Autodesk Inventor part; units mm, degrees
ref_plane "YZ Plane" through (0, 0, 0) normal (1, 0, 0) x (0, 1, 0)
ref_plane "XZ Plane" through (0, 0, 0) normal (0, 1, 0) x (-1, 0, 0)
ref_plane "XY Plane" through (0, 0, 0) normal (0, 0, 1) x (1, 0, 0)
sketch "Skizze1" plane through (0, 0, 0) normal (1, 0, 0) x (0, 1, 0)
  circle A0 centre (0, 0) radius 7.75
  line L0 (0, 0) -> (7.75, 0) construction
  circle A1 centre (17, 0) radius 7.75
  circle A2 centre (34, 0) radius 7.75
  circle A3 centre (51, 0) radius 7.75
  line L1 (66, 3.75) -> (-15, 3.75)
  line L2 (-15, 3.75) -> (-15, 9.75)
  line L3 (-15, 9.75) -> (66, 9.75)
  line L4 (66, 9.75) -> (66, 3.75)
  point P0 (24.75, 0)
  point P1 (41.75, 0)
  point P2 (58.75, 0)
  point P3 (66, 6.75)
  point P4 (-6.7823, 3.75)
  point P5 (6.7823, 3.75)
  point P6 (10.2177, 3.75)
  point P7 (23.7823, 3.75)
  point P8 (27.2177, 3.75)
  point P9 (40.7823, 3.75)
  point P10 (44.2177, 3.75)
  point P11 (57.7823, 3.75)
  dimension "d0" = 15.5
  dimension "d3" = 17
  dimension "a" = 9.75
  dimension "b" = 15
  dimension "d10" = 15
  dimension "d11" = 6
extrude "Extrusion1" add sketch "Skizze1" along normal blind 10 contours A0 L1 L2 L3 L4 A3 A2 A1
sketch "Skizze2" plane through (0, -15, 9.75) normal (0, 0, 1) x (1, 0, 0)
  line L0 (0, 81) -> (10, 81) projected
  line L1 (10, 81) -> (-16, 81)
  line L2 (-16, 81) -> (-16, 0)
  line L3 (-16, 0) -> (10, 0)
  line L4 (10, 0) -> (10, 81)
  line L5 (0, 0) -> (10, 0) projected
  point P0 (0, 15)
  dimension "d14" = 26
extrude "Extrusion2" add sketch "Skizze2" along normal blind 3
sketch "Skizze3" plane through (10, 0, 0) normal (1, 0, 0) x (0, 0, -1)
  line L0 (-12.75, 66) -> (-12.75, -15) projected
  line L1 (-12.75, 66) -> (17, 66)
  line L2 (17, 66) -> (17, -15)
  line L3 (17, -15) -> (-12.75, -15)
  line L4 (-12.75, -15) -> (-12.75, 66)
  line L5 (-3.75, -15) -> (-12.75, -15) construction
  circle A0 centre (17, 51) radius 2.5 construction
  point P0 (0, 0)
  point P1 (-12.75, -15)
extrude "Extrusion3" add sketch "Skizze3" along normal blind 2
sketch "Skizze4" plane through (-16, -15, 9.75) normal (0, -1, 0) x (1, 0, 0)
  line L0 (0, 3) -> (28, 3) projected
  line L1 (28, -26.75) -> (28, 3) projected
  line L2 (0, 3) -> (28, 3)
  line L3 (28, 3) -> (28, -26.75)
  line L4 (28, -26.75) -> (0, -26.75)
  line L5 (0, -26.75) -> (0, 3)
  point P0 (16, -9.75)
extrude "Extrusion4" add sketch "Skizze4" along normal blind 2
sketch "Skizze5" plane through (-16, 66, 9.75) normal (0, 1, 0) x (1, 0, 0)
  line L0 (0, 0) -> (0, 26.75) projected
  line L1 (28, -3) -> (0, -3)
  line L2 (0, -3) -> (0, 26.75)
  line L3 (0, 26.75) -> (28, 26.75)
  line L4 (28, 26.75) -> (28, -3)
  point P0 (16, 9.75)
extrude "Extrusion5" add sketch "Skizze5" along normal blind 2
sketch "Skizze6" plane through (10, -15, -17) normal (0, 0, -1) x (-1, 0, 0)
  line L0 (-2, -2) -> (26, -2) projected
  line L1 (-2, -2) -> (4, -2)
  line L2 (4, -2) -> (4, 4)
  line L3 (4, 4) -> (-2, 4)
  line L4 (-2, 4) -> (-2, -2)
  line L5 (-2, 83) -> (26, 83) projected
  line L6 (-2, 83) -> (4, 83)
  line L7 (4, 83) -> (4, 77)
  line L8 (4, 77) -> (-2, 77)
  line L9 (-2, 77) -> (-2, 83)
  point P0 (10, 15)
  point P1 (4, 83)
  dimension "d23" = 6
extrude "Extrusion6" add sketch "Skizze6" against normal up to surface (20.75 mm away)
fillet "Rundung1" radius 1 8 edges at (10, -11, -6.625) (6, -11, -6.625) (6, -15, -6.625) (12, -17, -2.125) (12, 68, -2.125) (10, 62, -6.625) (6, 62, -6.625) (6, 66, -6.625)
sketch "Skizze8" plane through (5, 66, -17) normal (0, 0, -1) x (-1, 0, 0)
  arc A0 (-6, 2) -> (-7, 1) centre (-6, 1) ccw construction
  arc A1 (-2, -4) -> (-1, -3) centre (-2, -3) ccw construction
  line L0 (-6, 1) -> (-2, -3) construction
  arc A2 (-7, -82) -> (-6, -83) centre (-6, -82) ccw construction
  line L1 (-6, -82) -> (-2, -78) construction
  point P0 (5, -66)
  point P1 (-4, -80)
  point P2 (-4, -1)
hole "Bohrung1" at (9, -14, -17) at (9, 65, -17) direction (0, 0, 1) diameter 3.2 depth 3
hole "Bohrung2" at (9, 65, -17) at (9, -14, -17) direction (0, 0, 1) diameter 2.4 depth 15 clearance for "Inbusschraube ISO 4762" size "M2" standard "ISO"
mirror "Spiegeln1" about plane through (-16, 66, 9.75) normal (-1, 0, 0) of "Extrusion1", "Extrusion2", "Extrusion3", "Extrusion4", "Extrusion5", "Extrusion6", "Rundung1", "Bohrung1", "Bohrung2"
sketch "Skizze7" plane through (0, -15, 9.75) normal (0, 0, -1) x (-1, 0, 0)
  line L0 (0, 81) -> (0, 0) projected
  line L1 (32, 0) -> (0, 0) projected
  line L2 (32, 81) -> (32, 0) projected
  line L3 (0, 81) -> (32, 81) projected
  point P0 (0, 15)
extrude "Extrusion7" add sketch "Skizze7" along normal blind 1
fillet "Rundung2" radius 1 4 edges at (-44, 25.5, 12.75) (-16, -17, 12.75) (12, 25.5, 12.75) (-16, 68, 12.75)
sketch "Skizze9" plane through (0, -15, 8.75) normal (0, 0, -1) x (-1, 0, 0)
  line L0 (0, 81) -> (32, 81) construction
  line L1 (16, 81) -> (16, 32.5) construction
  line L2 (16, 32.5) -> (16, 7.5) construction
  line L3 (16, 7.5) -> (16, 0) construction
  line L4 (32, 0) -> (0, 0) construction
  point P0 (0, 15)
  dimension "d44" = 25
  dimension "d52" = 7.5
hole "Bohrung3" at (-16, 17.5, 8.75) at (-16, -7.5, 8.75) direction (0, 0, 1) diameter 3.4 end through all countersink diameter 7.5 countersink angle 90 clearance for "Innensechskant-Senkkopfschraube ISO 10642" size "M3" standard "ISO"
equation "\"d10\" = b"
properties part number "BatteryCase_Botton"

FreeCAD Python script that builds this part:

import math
import FreeCAD as App
import Part
import Sketcher
from FreeCAD import Vector


def edges_at(feature, points):
    """Names of the edges that pass closest to the given points."""
    edges = feature.Shape.Edges
    near = lambda p: min(range(len(edges)), key=lambda i: edges[i].distToShape(Part.Vertex(*p))[0])
    return sorted({f"Edge{near(p) + 1}" for p in points})

doc = App.newDocument("Part")
body = doc.addObject("PartDesign::Body", "Body")

# Sketch on YZ plane
sketch1 = doc.addObject("Sketcher::SketchObject", "Sketch")
body.addObject(sketch1)
sketch1.AttachmentSupport = (doc.YZ_Plane, [""])
sketch1.MapMode = "FlatFace"
sketch1.addGeometry(Part.ArcOfCircle(Part.Circle(Vector(0, 0, 0), Vector(0, 0, 1), 7.8), math.radians(29), math.radians(151)), False)
sketch1.addGeometry(Part.LineSegment(Vector(6.8, 3.8, 0), Vector(10.2, 3.8, 0)), False)
sketch1.addGeometry(Part.ArcOfCircle(Part.Circle(Vector(17, 0, 0), Vector(0, 0, 1), 7.8), math.radians(29), math.radians(151)), False)
sketch1.addGeometry(Part.LineSegment(Vector(23.8, 3.8, 0), Vector(27.2, 3.8, 0)), False)
sketch1.addGeometry(Part.ArcOfCircle(Part.Circle(Vector(34, 0, 0), Vector(0, 0, 1), 7.8), math.radians(29), math.radians(151)), False)
sketch1.addGeometry(Part.LineSegment(Vector(40.8, 3.8, 0), Vector(44.2, 3.8, 0)), False)
sketch1.addGeometry(Part.ArcOfCircle(Part.Circle(Vector(51, 0, 0), Vector(0, 0, 1), 7.8), math.radians(29), math.radians(151)), False)
sketch1.addGeometry(Part.LineSegment(Vector(57.8, 3.8, 0), Vector(66, 3.8, 0)), False)
sketch1.addGeometry(Part.LineSegment(Vector(66, 3.8, 0), Vector(66, 9.8, 0)), False)
sketch1.addGeometry(Part.LineSegment(Vector(66, 9.8, 0), Vector(-15, 9.8, 0)), False)
sketch1.addGeometry(Part.LineSegment(Vector(-15, 9.8, 0), Vector(-15, 3.8, 0)), False)
sketch1.addGeometry(Part.LineSegment(Vector(-15, 3.8, 0), Vector(-6.8, 3.8, 0)), False)
sketch1.addConstraint(Sketcher.Constraint("Coincident", 0, 1, 1, 1))
sketch1.addConstraint(Sketcher.Constraint("Coincident", 1, 2, 2, 2))
sketch1.addConstraint(Sketcher.Constraint("Coincident", 2, 1, 3, 1))
sketch1.addConstraint(Sketcher.Constraint("Coincident", 3, 2, 4, 2))
sketch1.addConstraint(Sketcher.Constraint("Coincident", 4, 1, 5, 1))
sketch1.addConstraint(Sketcher.Constraint("Coincident", 5, 2, 6, 2))
sketch1.addConstraint(Sketcher.Constraint("Coincident", 6, 1, 7, 1))
sketch1.addConstraint(Sketcher.Constraint("Coincident", 7, 2, 8, 1))
sketch1.addConstraint(Sketcher.Constraint("Coincident", 8, 2, 9, 1))
sketch1.addConstraint(Sketcher.Constraint("Coincident", 9, 2, 10, 1))
sketch1.addConstraint(Sketcher.Constraint("Coincident", 10, 2, 11, 1))
sketch1.addConstraint(Sketcher.Constraint("Coincident", 11, 2, 0, 2))
sketch1.addConstraint(Sketcher.Constraint("Horizontal", 1))
sketch1.addConstraint(Sketcher.Constraint("Horizontal", 3))
sketch1.addConstraint(Sketcher.Constraint("Horizontal", 5))
sketch1.addConstraint(Sketcher.Constraint("Horizontal", 7))
sketch1.addConstraint(Sketcher.Constraint("Vertical", 8))
sketch1.addConstraint(Sketcher.Constraint("Horizontal", 9))
sketch1.addConstraint(Sketcher.Constraint("Vertical", 10))
sketch1.addConstraint(Sketcher.Constraint("Horizontal", 11))
sketch1.addConstraint(Sketcher.Constraint("Coincident", 0, 3, -1, 1))
sketch1.addConstraint(Sketcher.Constraint("Equal", 0, 2))
sketch1.addConstraint(Sketcher.Constraint("Equal", 2, 4))
sketch1.addConstraint(Sketcher.Constraint("Equal", 4, 6))
sketch1.addConstraint(Sketcher.Constraint("PointOnObject", 2, 3, -1))
sketch1.addConstraint(Sketcher.Constraint("PointOnObject", 4, 3, -1))
sketch1.addConstraint(Sketcher.Constraint("PointOnObject", 6, 3, -1))
sketch1.addConstraint(Sketcher.Constraint("Horizontal", 1, 2, 2, 1))
sketch1.addConstraint(Sketcher.Constraint("Horizontal", 3, 2, 4, 1))
sketch1.addConstraint(Sketcher.Constraint("Horizontal", 5, 2, 6, 1))
sketch1.addConstraint(Sketcher.Constraint("Horizontal", 7, 2, 10, 2))
sketch1.addConstraint(Sketcher.Constraint("Equal", 1, 3))
sketch1.addConstraint(Sketcher.Constraint("Equal", 3, 5))
sketch1.addConstraint(Sketcher.Constraint("Equal", 7, 11))
sketch1.addConstraint(Sketcher.Constraint("DistanceY", 8, 1, 8, 2, 6.0))
sketch1.addConstraint(Sketcher.Constraint("Radius", 0, 7.75))
sketch1.addConstraint(Sketcher.Constraint("DistanceX", -1, 1, 2, 3, 17.0))
sketch1.addConstraint(Sketcher.Constraint("DistanceX", 9, 2, -1, 1, 15.0))
sketch1.addConstraint(Sketcher.Constraint("DistanceY", -1, 1, 8, 2, 9.75))
pad1 = doc.addObject("PartDesign::Pad", "Pad")
body.addObject(pad1)
pad1.Profile = sketch1
pad1.Length = 10

# Sketch on XY plane
sketch2 = doc.addObject("Sketcher::SketchObject", "Sketch001")
body.addObject(sketch2)
sketch2.AttachmentSupport = (doc.XY_Plane, [""])
sketch2.MapMode = "FlatFace"
sketch2.AttachmentOffset = App.Placement(Vector(0, 0, 9.75), App.Rotation())
sketch2.addGeometry(Part.LineSegment(Vector(10, 66, 0), Vector(-16, 66, 0)), False)
sketch2.addGeometry(Part.LineSegment(Vector(-16, 66, 0), Vector(-16, -15, 0)), False)
sketch2.addGeometry(Part.LineSegment(Vector(-16, -15, 0), Vector(10, -15, 0)), False)
sketch2.addGeometry(Part.LineSegment(Vector(10, -15, 0), Vector(10, 66, 0)), False)
sketch2.addConstraint(Sketcher.Constraint("Coincident", 0, 2, 1, 1))
sketch2.addConstraint(Sketcher.Constraint("Coincident", 1, 2, 2, 1))
sketch2.addConstraint(Sketcher.Constraint("Coincident", 2, 2, 3, 1))
sketch2.addConstraint(Sketcher.Constraint("Coincident", 3, 2, 0, 1))
sketch2.addConstraint(Sketcher.Constraint("Horizontal", 0))
sketch2.addConstraint(Sketcher.Constraint("Vertical", 1))
sketch2.addConstraint(Sketcher.Constraint("Horizontal", 2))
sketch2.addConstraint(Sketcher.Constraint("Vertical", 3))
sketch2.addConstraint(Sketcher.Constraint("DistanceX", 0, 2, 0, 1, 26.0))
sketch2.addConstraint(Sketcher.Constraint("DistanceY", 1, 2, 1, 1, 81.0))
sketch2.addConstraint(Sketcher.Constraint("DistanceX", 0, 2, -1, 1, 16.0))
sketch2.addConstraint(Sketcher.Constraint("DistanceY", -1, 1, 0, 2, 66.0))
pad2 = doc.addObject("PartDesign::Pad", "Pad001")
body.addObject(pad2)
pad2.Profile = sketch2
pad2.Length = 3

# Sketch on YZ plane
sketch3 = doc.addObject("Sketcher::SketchObject", "Sketch002")
body.addObject(sketch3)
sketch3.AttachmentSupport = (doc.YZ_Plane, [""])
sketch3.MapMode = "FlatFace"
sketch3.AttachmentOffset = App.Placement(Vector(0, 0, 10), App.Rotation())
sketch3.addGeometry(Part.LineSegment(Vector(66, -17, 0), Vector(66, 13, 0)), False)
sketch3.addGeometry(Part.LineSegment(Vector(66, 13, 0), Vector(-15, 13, 0)), False)
sketch3.addGeometry(Part.LineSegment(Vector(-15, 13, 0), Vector(-15, -17, 0)), False)
sketch3.addGeometry(Part.LineSegment(Vector(-15, -17, 0), Vector(66, -17, 0)), False)
sketch3.addConstraint(Sketcher.Constraint("Coincident", 0, 2, 1, 1))
sketch3.addConstraint(Sketcher.Constraint("Coincident", 1, 2, 2, 1))
sketch3.addConstraint(Sketcher.Constraint("Coincident", 2, 2, 3, 1))
sketch3.addConstraint(Sketcher.Constraint("Coincident", 3, 2, 0, 1))
sketch3.addConstraint(Sketcher.Constraint("Vertical", 0))
sketch3.addConstraint(Sketcher.Constraint("Horizontal", 1))
sketch3.addConstraint(Sketcher.Constraint("Vertical", 2))
sketch3.addConstraint(Sketcher.Constraint("Horizontal", 3))
sketch3.addConstraint(Sketcher.Constraint("DistanceX", 1, 2, 1, 1, 81.0))
sketch3.addConstraint(Sketcher.Constraint("DistanceX", -1, 1, 0, 2, 66.0))
sketch3.addConstraint(Sketcher.Constraint("DistanceY", 2, 2, -1, 1, 17.0))
sketch3.addConstraint(Sketcher.Constraint("DistanceY", 0, 1, 0, 2, 29.75))
pad3 = doc.addObject("PartDesign::Pad", "Pad002")
body.addObject(pad3)
pad3.Profile = sketch3
pad3.Length = 2

# Sketch on XZ plane
sketch4 = doc.addObject("Sketcher::SketchObject", "Sketch003")
body.addObject(sketch4)
sketch4.AttachmentSupport = (doc.XZ_Plane, [""])
sketch4.MapMode = "FlatFace"
sketch4.AttachmentOffset = App.Placement(Vector(0, 0, 15), App.Rotation())
sketch4.addGeometry(Part.LineSegment(Vector(12, 13, 0), Vector(-16, 13, 0)), False)
sketch4.addGeometry(Part.LineSegment(Vector(-16, 13, 0), Vector(-16, -17, 0)), False)
sketch4.addGeometry(Part.LineSegment(Vector(-16, -17, 0), Vector(12, -17, 0)), False)
sketch4.addGeometry(Part.LineSegment(Vector(12, -17, 0), Vector(12, 13, 0)), False)
sketch4.addConstraint(Sketcher.Constraint("Coincident", 0, 2, 1, 1))
sketch4.addConstraint(Sketcher.Constraint("Coincident", 1, 2, 2, 1))
sketch4.addConstraint(Sketcher.Constraint("Coincident", 2, 2, 3, 1))
sketch4.addConstraint(Sketcher.Constraint("Coincident", 3, 2, 0, 1))
sketch4.addConstraint(Sketcher.Constraint("Horizontal", 0))
sketch4.addConstraint(Sketcher.Constraint("Vertical", 1))
sketch4.addConstraint(Sketcher.Constraint("Horizontal", 2))
sketch4.addConstraint(Sketcher.Constraint("Vertical", 3))
sketch4.addConstraint(Sketcher.Constraint("DistanceX", 0, 2, 0, 1, 28.0))
sketch4.addConstraint(Sketcher.Constraint("DistanceX", 0, 2, -1, 1, 16.0))
sketch4.addConstraint(Sketcher.Constraint("DistanceY", 1, 2, -1, 1, 17.0))
sketch4.addConstraint(Sketcher.Constraint("DistanceY", 1, 2, 1, 1, 29.75))
pad4 = doc.addObject("PartDesign::Pad", "Pad003")
body.addObject(pad4)
pad4.Profile = sketch4
pad4.Length = 2

# Sketch on XZ plane
sketch5 = doc.addObject("Sketcher::SketchObject", "Sketch004")
body.addObject(sketch5)
sketch5.AttachmentSupport = (doc.XZ_Plane, [""])
sketch5.MapMode = "FlatFace"
sketch5.AttachmentOffset = App.Placement(Vector(0, 0, -66), App.Rotation())
sketch5.addGeometry(Part.LineSegment(Vector(-16, -17, 0), Vector(-16, 13, 0)), False)
sketch5.addGeometry(Part.LineSegment(Vector(-16, 13, 0), Vector(12, 13, 0)), False)
sketch5.addGeometry(Part.LineSegment(Vector(12, 13, 0), Vector(12, -17, 0)), False)
sketch5.addGeometry(Part.LineSegment(Vector(12, -17, 0), Vector(-16, -17, 0)), False)
sketch5.addConstraint(Sketcher.Constraint("Coincident", 0, 2, 1, 1))
sketch5.addConstraint(Sketcher.Constraint("Coincident", 1, 2, 2, 1))
sketch5.addConstraint(Sketcher.Constraint("Coincident", 2, 2, 3, 1))
sketch5.addConstraint(Sketcher.Constraint("Coincident", 3, 2, 0, 1))
sketch5.addConstraint(Sketcher.Constraint("Vertical", 0))
sketch5.addConstraint(Sketcher.Constraint("Horizontal", 1))
sketch5.addConstraint(Sketcher.Constraint("Vertical", 2))
sketch5.addConstraint(Sketcher.Constraint("Horizontal", 3))
sketch5.addConstraint(Sketcher.Constraint("DistanceX", 1, 1, 1, 2, 28.0))
sketch5.addConstraint(Sketcher.Constraint("DistanceX", 0, 2, -1, 1, 16.0))
sketch5.addConstraint(Sketcher.Constraint("DistanceY", 2, 2, -1, 1, 17.0))
sketch5.addConstraint(Sketcher.Constraint("DistanceY", 0, 1, 0, 2, 29.75))
pad5 = doc.addObject("PartDesign::Pad", "Pad004")
body.addObject(pad5)
pad5.Profile = sketch5
pad5.Length = 2
pad5.Reversed = True

# Sketch on XY plane
sketch6 = doc.addObject("Sketcher::SketchObject", "Sketch005")
body.addObject(sketch6)
sketch6.AttachmentSupport = (doc.XY_Plane, [""])
sketch6.MapMode = "FlatFace"
sketch6.AttachmentOffset = App.Placement(Vector(0, 0, -17), App.Rotation())
sketch6.addGeometry(Part.LineSegment(Vector(12, -11, 0), Vector(12, -17, 0)), False)
sketch6.addGeometry(Part.LineSegment(Vector(12, -17, 0), Vector(6, -17, 0)), False)
sketch6.addGeometry(Part.LineSegment(Vector(6, -17, 0), Vector(6, -11, 0)), False)
sketch6.addGeometry(Part.LineSegment(Vector(6, -11, 0), Vector(12, -11, 0)), False)
sketch6.addGeometry(Part.LineSegment(Vector(6, 68, 0), Vector(12, 68, 0)), False)
sketch6.addGeometry(Part.LineSegment(Vector(12, 68, 0), Vector(12, 62, 0)), False)
sketch6.addGeometry(Part.LineSegment(Vector(12, 62, 0), Vector(6, 62, 0)), False)
sketch6.addGeometry(Part.LineSegment(Vector(6, 62, 0), Vector(6, 68, 0)), False)
sketch6.addConstraint(Sketcher.Constraint("Coincident", 0, 2, 1, 1))
sketch6.addConstraint(Sketcher.Constraint("Coincident", 1, 2, 2, 1))
sketch6.addConstraint(Sketcher.Constraint("Coincident", 2, 2, 3, 1))
sketch6.addConstraint(Sketcher.Constraint("Coincident", 3, 2, 0, 1))
sketch6.addConstraint(Sketcher.Constraint("Coincident", 4, 2, 5, 1))
sketch6.addConstraint(Sketcher.Constraint("Coincident", 5, 2, 6, 1))
sketch6.addConstraint(Sketcher.Constraint("Coincident", 6, 2, 7, 1))
sketch6.addConstraint(Sketcher.Constraint("Coincident", 7, 2, 4, 1))
sketch6.addConstraint(Sketcher.Constraint("Vertical", 0))
sketch6.addConstraint(Sketcher.Constraint("Horizontal", 1))
sketch6.addConstraint(Sketcher.Constraint("Vertical", 2))
sketch6.addConstraint(Sketcher.Constraint("Horizontal", 3))
sketch6.addConstraint(Sketcher.Constraint("Horizontal", 4))
sketch6.addConstraint(Sketcher.Constraint("Vertical", 5))
sketch6.addConstraint(Sketcher.Constraint("Horizontal", 6))
sketch6.addConstraint(Sketcher.Constraint("Vertical", 7))
sketch6.addConstraint(Sketcher.Constraint("Vertical", 3, 2, 4, 2))
sketch6.addConstraint(Sketcher.Constraint("Vertical", 2, 2, 6, 2))
sketch6.addConstraint(Sketcher.Constraint("Equal", 6, 0))
sketch6.addConstraint(Sketcher.Constraint("Equal", 2, 5))
sketch6.addConstraint(Sketcher.Constraint("DistanceX", 1, 2, 1, 1, 6.0))
sketch6.addConstraint(Sketcher.Constraint("DistanceX", -1, 1, 1, 2, 6.0))
sketch6.addConstraint(Sketcher.Constraint("DistanceY", 0, 2, -1, 1, 17.0))
sketch6.addConstraint(Sketcher.Constraint("DistanceY", -1, 1, 4, 2, 68.0))
pad6 = doc.addObject("PartDesign::Pad", "Pad005")
body.addObject(pad6)
pad6.Profile = sketch6
pad6.Length = 20.75
doc.recompute()

fillet = doc.addObject("PartDesign::Fillet", "Fillet")
body.addObject(fillet)
fillet.Base = (pad6, edges_at(pad6, [
    (10, -11, -6.625),
    (6, -11, -6.625),
    (6, -15, -6.625),
    (12, -17, -2.125),
    (12, 68, -2.125),
    (10, 62, -6.625),
    (6, 62, -6.625),
    (6, 66, -6.625),
]))
fillet.Radius = 1

# Sketch on XY plane
sketch7 = doc.addObject("Sketcher::SketchObject", "Sketch006")
body.addObject(sketch7)
sketch7.AttachmentSupport = (doc.XY_Plane, [""])
sketch7.MapMode = "FlatFace"
sketch7.AttachmentOffset = App.Placement(Vector(0, 0, -17), App.Rotation())
sketch7.addGeometry(Part.Circle(Vector(9, -14, 0), Vector(0, 0, 1), 1.6), False)
sketch7.addGeometry(Part.Circle(Vector(9, 65, 0), Vector(0, 0, 1), 1.6), False)
sketch7.addConstraint(Sketcher.Constraint("Equal", 0, 1))
sketch7.addConstraint(Sketcher.Constraint("Vertical", 0, 3, 1, 3))
sketch7.addConstraint(Sketcher.Constraint("Diameter", 0, 3.2))
sketch7.addConstraint(Sketcher.Constraint("DistanceX", -1, 1, 0, 3, 9.0))
sketch7.addConstraint(Sketcher.Constraint("DistanceY", 0, 3, -1, 1, 14.0))
sketch7.addConstraint(Sketcher.Constraint("DistanceY", -1, 1, 1, 3, 65.0))
doc.recompute()
hole = doc.addObject("PartDesign::Hole", "Hole")
body.addObject(hole)
hole.Profile = sketch7
hole.ThreadType = "None"
hole.Diameter = 3.2
hole.DepthType = "Dimension"
hole.Depth = 3
hole.DrillPoint = "Flat"
hole.Reversed = True

# Sketch on XY plane
sketch8 = doc.addObject("Sketcher::SketchObject", "Sketch007")
body.addObject(sketch8)
sketch8.AttachmentSupport = (doc.XY_Plane, [""])
sketch8.MapMode = "FlatFace"
sketch8.AttachmentOffset = App.Placement(Vector(0, 0, -17), App.Rotation())
sketch8.addGeometry(Part.Circle(Vector(9, 65, 0), Vector(0, 0, 1), 1.2), False)
sketch8.addGeometry(Part.Circle(Vector(9, -14, 0), Vector(0, 0, 1), 1.2), False)
sketch8.addConstraint(Sketcher.Constraint("Equal", 0, 1))
sketch8.addConstraint(Sketcher.Constraint("Vertical", 0, 3, 1, 3))
sketch8.addConstraint(Sketcher.Constraint("Diameter", 0, 2.4))
sketch8.addConstraint(Sketcher.Constraint("DistanceX", -1, 1, 0, 3, 9.0))
sketch8.addConstraint(Sketcher.Constraint("DistanceY", -1, 1, 0, 3, 65.0))
sketch8.addConstraint(Sketcher.Constraint("DistanceY", 1, 3, -1, 1, 14.0))
doc.recompute()
hole2 = doc.addObject("PartDesign::Hole", "Hole001")
body.addObject(hole2)
hole2.Profile = sketch8
hole2.ThreadType = "None"
hole2.Diameter = 2.4
hole2.DepthType = "Dimension"
hole2.Depth = 15
hole2.DrillPoint = "Flat"
hole2.Reversed = True
doc.recompute()

datumplane = doc.addObject("PartDesign::Plane", "DatumPlane")
body.addObject(datumplane)
datumplane.AttachmentSupport = (doc.YZ_Plane, [""])
datumplane.MapMode = "FlatFace"
datumplane.AttachmentOffset = App.Placement(Vector(0, 0, -16), App.Rotation())
mirrored = doc.addObject("PartDesign::Mirrored", "Mirrored")
body.addObject(mirrored)
mirrored.Originals = [pad1, pad2, pad3, pad4, pad5, pad6, fillet, hole, hole2]
mirrored.MirrorPlane = (datumplane, [""])
body.Tip = mirrored

# Sketch on XY plane
sketch9 = doc.addObject("Sketcher::SketchObject", "Sketch008")
body.addObject(sketch9)
sketch9.AttachmentSupport = (doc.XY_Plane, [""])
sketch9.MapMode = "FlatFace"
sketch9.AttachmentOffset = App.Placement(Vector(0, 0, 9.75), App.Rotation())
sketch9.addGeometry(Part.LineSegment(Vector(-32, 66, 0), Vector(0, 66, 0)), False)
sketch9.addGeometry(Part.LineSegment(Vector(0, 66, 0), Vector(0, -15, 0)), False)
sketch9.addGeometry(Part.LineSegment(Vector(0, -15, 0), Vector(-32, -15, 0)), False)
sketch9.addGeometry(Part.LineSegment(Vector(-32, -15, 0), Vector(-32, 66, 0)), False)
sketch9.addConstraint(Sketcher.Constraint("Coincident", 0, 2, 1, 1))
sketch9.addConstraint(Sketcher.Constraint("Coincident", 1, 2, 2, 1))
sketch9.addConstraint(Sketcher.Constraint("Coincident", 2, 2, 3, 1))
sketch9.addConstraint(Sketcher.Constraint("Coincident", 3, 2, 0, 1))
sketch9.addConstraint(Sketcher.Constraint("Horizontal", 0))
sketch9.addConstraint(Sketcher.Constraint("Vertical", 1))
sketch9.addConstraint(Sketcher.Constraint("Horizontal", 2))
sketch9.addConstraint(Sketcher.Constraint("Vertical", 3))
sketch9.addConstraint(Sketcher.Constraint("PointOnObject", 0, 2, -2))
sketch9.addConstraint(Sketcher.Constraint("DistanceX", 0, 1, 0, 2, 32.0))
sketch9.addConstraint(Sketcher.Constraint("DistanceY", 1, 2, 1, 1, 81.0))
sketch9.addConstraint(Sketcher.Constraint("DistanceY", -1, 1, 0, 2, 66.0))
pad7 = doc.addObject("PartDesign::Pad", "Pad006")
body.addObject(pad7)
pad7.Profile = sketch9
pad7.Length = 1
pad7.Reversed = True
doc.recompute()

fillet2 = doc.addObject("PartDesign::Fillet", "Fillet001")
body.addObject(fillet2)
fillet2.Base = (pad7, edges_at(pad7, [
    (-44, 25.5, 12.75),
    (-16, -17, 12.75),
    (12, 25.5, 12.75),
    (-16, 68, 12.75),
]))
fillet2.Radius = 1

# Sketch on XY plane
sketch10 = doc.addObject("Sketcher::SketchObject", "Sketch009")
body.addObject(sketch10)
sketch10.AttachmentSupport = (doc.XY_Plane, [""])
sketch10.MapMode = "FlatFace"
sketch10.AttachmentOffset = App.Placement(Vector(0, 0, 8.75), App.Rotation())
sketch10.addGeometry(Part.Circle(Vector(-16, 17.5, 0), Vector(0, 0, 1), 1.7), False)
sketch10.addGeometry(Part.Circle(Vector(-16, -7.5, 0), Vector(0, 0, 1), 1.7), False)
sketch10.addConstraint(Sketcher.Constraint("Equal", 0, 1))
sketch10.addConstraint(Sketcher.Constraint("Vertical", 0, 3, 1, 3))
sketch10.addConstraint(Sketcher.Constraint("Diameter", 0, 3.4))
sketch10.addConstraint(Sketcher.Constraint("DistanceX", 0, 3, -1, 1, 16.0))
sketch10.addConstraint(Sketcher.Constraint("DistanceY", 1, 3, 0, 3, 25.0))
sketch10.addConstraint(Sketcher.Constraint("DistanceY", -1, 1, 0, 3, 17.5))
doc.recompute()
hole3 = doc.addObject("PartDesign::Hole", "Hole002")
body.addObject(hole3)
hole3.Profile = sketch10
hole3.ThreadType = "None"
hole3.Diameter = 3.4
hole3.DepthType = "ThroughAll"
hole3.HoleCutType = "Countersink"
hole3.HoleCutDiameter = 7.5
hole3.HoleCutCountersinkAngle = 90
hole3.Reversed = True

doc.recompute()
